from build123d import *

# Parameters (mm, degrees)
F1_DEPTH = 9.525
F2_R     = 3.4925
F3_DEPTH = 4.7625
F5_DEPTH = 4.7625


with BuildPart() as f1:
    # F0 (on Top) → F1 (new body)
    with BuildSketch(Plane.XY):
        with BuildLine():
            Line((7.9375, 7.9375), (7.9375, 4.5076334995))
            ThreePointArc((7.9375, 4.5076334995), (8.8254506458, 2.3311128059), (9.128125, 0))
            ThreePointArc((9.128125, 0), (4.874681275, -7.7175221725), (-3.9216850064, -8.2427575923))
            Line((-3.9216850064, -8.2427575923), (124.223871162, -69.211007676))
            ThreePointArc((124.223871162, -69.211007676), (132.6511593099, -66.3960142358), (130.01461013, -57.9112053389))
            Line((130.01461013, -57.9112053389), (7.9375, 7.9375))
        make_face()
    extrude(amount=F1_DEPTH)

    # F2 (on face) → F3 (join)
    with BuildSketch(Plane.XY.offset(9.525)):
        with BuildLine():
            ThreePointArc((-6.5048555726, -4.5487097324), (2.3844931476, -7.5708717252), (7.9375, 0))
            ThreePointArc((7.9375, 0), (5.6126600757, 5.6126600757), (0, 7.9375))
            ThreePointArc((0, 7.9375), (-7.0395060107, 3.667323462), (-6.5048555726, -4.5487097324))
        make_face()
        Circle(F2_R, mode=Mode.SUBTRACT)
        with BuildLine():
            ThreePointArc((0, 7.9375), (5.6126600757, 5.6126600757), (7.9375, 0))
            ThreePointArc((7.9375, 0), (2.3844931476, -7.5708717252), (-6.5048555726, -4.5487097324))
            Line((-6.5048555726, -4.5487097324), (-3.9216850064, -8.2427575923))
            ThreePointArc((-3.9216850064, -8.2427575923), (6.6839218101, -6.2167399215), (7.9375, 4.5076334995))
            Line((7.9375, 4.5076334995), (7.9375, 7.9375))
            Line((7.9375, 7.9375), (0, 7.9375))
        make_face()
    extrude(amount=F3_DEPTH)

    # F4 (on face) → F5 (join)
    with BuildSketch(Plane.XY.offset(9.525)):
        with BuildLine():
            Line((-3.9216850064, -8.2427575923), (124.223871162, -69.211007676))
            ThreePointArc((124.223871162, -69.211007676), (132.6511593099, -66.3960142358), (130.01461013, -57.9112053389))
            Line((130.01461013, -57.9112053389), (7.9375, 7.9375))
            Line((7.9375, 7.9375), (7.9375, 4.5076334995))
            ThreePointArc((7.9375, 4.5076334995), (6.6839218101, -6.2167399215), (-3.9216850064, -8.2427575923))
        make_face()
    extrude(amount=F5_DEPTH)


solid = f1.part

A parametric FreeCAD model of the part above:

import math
import FreeCAD as App
import Part
import Sketcher
from FreeCAD import Vector
Q = App.Units.Quantity

doc = App.newDocument("Part")
body = doc.addObject("PartDesign::Body", "Body")
body.AllowCompound = True

# Sketch on XY plane
sketch1 = body.newObject("Sketcher::SketchObject", "Sketch")
sketch1.AttachmentSupport = (doc.getObject("XY_Plane"), [""])
sketch1.MapMode = "FlatFace"
sketch1.addGeometry([
    Part.LineSegment(Vector(7.9, 7.9, 0), Vector(7.9, 4.5, 0)),  # 0
    Part.ArcOfCircle(Part.Circle(Vector(0, 0, 0), Vector(0, 0, 1), 9.1), math.radians(0), math.radians(30)),  # 1
    Part.ArcOfCircle(Part.Circle(Vector(0, 0, 0), Vector(0, 0, 1), 9.1), math.radians(-115), math.radians(0)),  # 2
    Part.LineSegment(Vector(-3.9, -8.2, 0), Vector(124.2, -69.2, 0)),  # 3
    Part.ArcOfCircle(Part.Circle(Vector(127, -63.5, 0), Vector(0, 0, 1), 6.3), math.radians(-116), math.radians(62)),  # 4
    Part.LineSegment(Vector(130, -57.9, 0), Vector(7.9, 7.9, 0)),  # 5
], False)
sketch1.addConstraint([
    Sketcher.Constraint("Coincident", 0, 2, 1, 2),
    Sketcher.Constraint("Tangent", 1, 1, 2, 2),
    Sketcher.Constraint("Tangent", 2, 1, 3, 1),
    Sketcher.Constraint("Coincident", 3, 2, 4, 1),
    Sketcher.Constraint("Tangent", 4, 2, 5, 1),
    Sketcher.Constraint("Coincident", 5, 2, 0, 1),
    Sketcher.Constraint("Vertical", 0),
    Sketcher.Constraint("Coincident", 1, 3, -1, 1),
    Sketcher.Constraint("Equal", 1, 2),
    Sketcher.Constraint("PointOnObject", 1, 1, -1),
    Sketcher.Constraint("Radius", 4, Q("0.25 in")),
    Sketcher.Constraint("DistanceX", -1, 1, 4, 3, Q("5 in")),
    Sketcher.Constraint("Radius", 1, Q("0.359375 in")),
    Sketcher.Constraint("DistanceY", 4, 3, -1, 1, Q("2.5 in")),
    Sketcher.Constraint("DistanceX", -1, 1, 0, 2, Q("0.3125 in")),
    Sketcher.Constraint("DistanceY", -1, 1, 5, 2, Q("0.3125 in")),
    Sketcher.Constraint("Distance", 3, Q("141.90987 mm")),
])
pad1 = body.newObject("PartDesign::Pad", "Pad")
pad1.Profile = sketch1
pad1.Length = Q("0.375 in")

# Sketch on XY plane
sketch2 = body.newObject("Sketcher::SketchObject", "Sketch001")
sketch2.AttachmentSupport = (doc.getObject("XY_Plane"), [""])
sketch2.MapMode = "FlatFace"
sketch2.AttachmentOffset = App.Placement(Vector(0, 0, 0.375 * 25.4), App.Rotation())
sketch2.addGeometry([
    Part.ArcOfCircle(Part.Circle(Vector(0, 0, 0), Vector(0, 0, 1), 7.9), math.radians(90), math.radians(215)),  # 0
    Part.LineSegment(Vector(-6.5, -4.5, 0), Vector(-3.9, -8.2, 0)),  # 1
    Part.ArcOfCircle(Part.Circle(Vector(0, 0, 0), Vector(0, 0, 1), 9.1), math.radians(-115), math.radians(30)),  # 2
    Part.LineSegment(Vector(7.9, 4.5, 0), Vector(7.9, 7.9, 0)),  # 3
    Part.LineSegment(Vector(7.9, 7.9, 0), Vector(0, 7.9, 0)),  # 4
    Part.Circle(Vector(0, 0, 0), Vector(0, 0, 1), 3.5),  # 5
], False)
sketch2.addConstraint([
    Sketcher.Constraint("Tangent", 0, 2, 1, 1),
    Sketcher.Constraint("Coincident", 1, 2, 2, 1),
    Sketcher.Constraint("Coincident", 2, 2, 3, 1),
    Sketcher.Constraint("Coincident", 3, 2, 4, 1),
    Sketcher.Constraint("Tangent", 4, 2, 0, 1),
    Sketcher.Constraint("Vertical", 3),
    Sketcher.Constraint("Horizontal", 4),
    Sketcher.Constraint("Coincident", 0, 3, -1, 1),
    Sketcher.Constraint("Coincident", 2, 3, -1, 1),
    Sketcher.Constraint("Coincident", 5, 3, -1, 1),
    Sketcher.Constraint("Diameter", 5, Q("0.275 in")),
    Sketcher.Constraint("Radius", 0, Q("0.3125 in")),
    Sketcher.Constraint("Radius", 2, Q("0.359375 in")),
    Sketcher.Constraint("DistanceX", 4, 2, 4, 1, Q("0.3125 in")),
    Sketcher.Constraint("DistanceY", 0, 2, -1, 1, Q("4.54871 mm")),
])
pad2 = body.newObject("PartDesign::Pad", "Pad001")
pad2.Profile = sketch2
pad2.Length = Q("0.1875 in")

# Sketch on XY plane
sketch3 = body.newObject("Sketcher::SketchObject", "Sketch002")
sketch3.AttachmentSupport = (doc.getObject("XY_Plane"), [""])
sketch3.MapMode = "FlatFace"
sketch3.AttachmentOffset = App.Placement(Vector(0, 0, 0.375 * 25.4), App.Rotation())
sketch3.addGeometry([
    Part.LineSegment(Vector(-3.9, -8.2, 0), Vector(124.2, -69.2, 0)),  # 0
    Part.ArcOfCircle(Part.Circle(Vector(127, -63.5, 0), Vector(0, 0, 1), 6.3), math.radians(-116), math.radians(62)),  # 1
    Part.LineSegment(Vector(130, -57.9, 0), Vector(7.9, 7.9, 0)),  # 2
    Part.LineSegment(Vector(7.9, 7.9, 0), Vector(7.9, 4.5, 0)),  # 3
    Part.ArcOfCircle(Part.Circle(Vector(0, 0, 0), Vector(0, 0, 1), 9.1), math.radians(-115), math.radians(30)),  # 4
], False)
sketch3.addConstraint([
    Sketcher.Constraint("Coincident", 0, 2, 1, 1),
    Sketcher.Constraint("Tangent", 1, 2, 2, 1),
    Sketcher.Constraint("Coincident", 2, 2, 3, 1),
    Sketcher.Constraint("Coincident", 3, 2, 4, 2),
    Sketcher.Constraint("Tangent", 4, 1, 0, 1),
    Sketcher.Constraint("Vertical", 3),
    Sketcher.Constraint("Coincident", 4, 3, -1, 1),
    Sketcher.Constraint("Radius", 1, Q("0.25 in")),
    Sketcher.Constraint("DistanceX", -1, 1, 1, 3, Q("5 in")),
    Sketcher.Constraint("Radius", 4, Q("0.359375 in")),
    Sketcher.Constraint("DistanceY", 1, 3, -1, 1, Q("2.5 in")),
    Sketcher.Constraint("DistanceX", -1, 1, 2, 2, Q("0.3125 in")),
    Sketcher.Constraint("DistanceY", -1, 1, 2, 2, Q("0.3125 in")),
    Sketcher.Constraint("Distance", 0, Q("141.90987 mm")),
])
pad3 = body.newObject("PartDesign::Pad", "Pad002")
pad3.Profile = sketch3
pad3.Length = Q("0.1875 in")

doc.recompute()
